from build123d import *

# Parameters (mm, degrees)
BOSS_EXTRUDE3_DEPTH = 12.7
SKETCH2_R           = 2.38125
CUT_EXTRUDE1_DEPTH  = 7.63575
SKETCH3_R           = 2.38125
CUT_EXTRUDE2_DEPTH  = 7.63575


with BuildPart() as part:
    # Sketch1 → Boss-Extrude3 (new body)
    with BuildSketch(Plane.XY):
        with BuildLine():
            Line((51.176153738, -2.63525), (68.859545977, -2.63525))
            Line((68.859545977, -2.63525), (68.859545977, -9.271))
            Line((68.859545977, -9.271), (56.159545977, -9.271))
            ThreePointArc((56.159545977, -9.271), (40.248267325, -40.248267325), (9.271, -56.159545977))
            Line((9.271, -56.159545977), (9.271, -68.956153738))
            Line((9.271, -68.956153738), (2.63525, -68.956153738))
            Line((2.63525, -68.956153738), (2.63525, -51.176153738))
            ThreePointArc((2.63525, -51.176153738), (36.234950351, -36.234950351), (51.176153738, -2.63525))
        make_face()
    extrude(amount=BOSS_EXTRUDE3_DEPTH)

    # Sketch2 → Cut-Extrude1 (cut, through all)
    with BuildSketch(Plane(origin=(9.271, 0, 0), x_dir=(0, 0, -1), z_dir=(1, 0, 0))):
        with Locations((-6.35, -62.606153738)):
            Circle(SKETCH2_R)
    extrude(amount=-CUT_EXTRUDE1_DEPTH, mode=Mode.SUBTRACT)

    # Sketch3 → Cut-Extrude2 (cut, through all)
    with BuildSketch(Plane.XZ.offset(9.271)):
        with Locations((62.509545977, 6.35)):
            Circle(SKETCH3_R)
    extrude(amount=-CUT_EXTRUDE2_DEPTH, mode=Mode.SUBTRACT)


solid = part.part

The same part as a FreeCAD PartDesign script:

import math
import FreeCAD as App
import Part
import Sketcher
from FreeCAD import Vector
Q = App.Units.Quantity

doc = App.newDocument("Part")
body = doc.addObject("PartDesign::Body", "Body")

sketch1 = body.newObject("Sketcher::SketchObject", "Sketch")
sketch1.AttachmentSupport = (doc.getObject("XY_Plane"), [""])
sketch1.MapMode = "FlatFace"
sketch1.addGeometry([
    Part.LineSegment(Vector(69, -3, 0), Vector(51, -3, 0)),
    Part.ArcOfCircle(Part.Circle(Vector(0, 0, 0), Vector(0, 0, 1), 51), math.radians(-87), math.radians(-3)),
    Part.LineSegment(Vector(3, -51, 0), Vector(3, -69, 0)),
    Part.LineSegment(Vector(3, -69, 0), Vector(9, -69, 0)),
    Part.LineSegment(Vector(9, -69, 0), Vector(9, -56, 0)),
    Part.ArcOfCircle(Part.Circle(Vector(0, 0, 0), Vector(0, 0, 1), 57), math.radians(-81), math.radians(-9)),
    Part.LineSegment(Vector(56, -9, 0), Vector(69, -9, 0)),
    Part.LineSegment(Vector(69, -9, 0), Vector(69, -3, 0)),
], False)
sketch1.addConstraint([
    Sketcher.Constraint("Coincident", 0, 2, 1, 2),
    Sketcher.Constraint("Coincident", 1, 1, 2, 1),
    Sketcher.Constraint("Coincident", 2, 2, 3, 1),
    Sketcher.Constraint("Coincident", 3, 2, 4, 1),
    Sketcher.Constraint("Coincident", 4, 2, 5, 1),
    Sketcher.Constraint("Coincident", 5, 2, 6, 1),
    Sketcher.Constraint("Coincident", 6, 2, 7, 1),
    Sketcher.Constraint("Coincident", 7, 2, 0, 1),
    Sketcher.Constraint("Horizontal", 0),
    Sketcher.Constraint("Vertical", 2),
    Sketcher.Constraint("Horizontal", 3),
    Sketcher.Constraint("Vertical", 4),
    Sketcher.Constraint("Horizontal", 6),
    Sketcher.Constraint("Vertical", 7),
    Sketcher.Constraint("Coincident", 1, 3, -1, 1),
    Sketcher.Constraint("Coincident", 5, 3, -1, 1),
    Sketcher.Constraint("Equal", 3, 7),
    Sketcher.Constraint("DistanceX", 6, 1, 6, 2, Q("0.5 in")),
    Sketcher.Constraint("DistanceY", 2, 2, 2, 1, Q("0.7 in")),
    Sketcher.Constraint("DistanceX", -1, 1, 3, 2, Q("0.365 in")),
    Sketcher.Constraint("DistanceY", 5, 2, -1, 1, Q("0.365 in")),
    Sketcher.Constraint("Radius", 1, Q("51.243958 mm")),
    Sketcher.Constraint("Radius", 5, Q("56.919646 mm")),
    Sketcher.Constraint("DistanceX", 3, 1, 3, 2, Q("6.63575 mm")),
])
pad1 = body.newObject("PartDesign::Pad", "Pad")
pad1.Profile = sketch1
pad1.Length = Q("0.5 in")

sketch2 = body.newObject("Sketcher::SketchObject", "Sketch001")
sketch2.AttachmentSupport = (doc.getObject("YZ_Plane"), [""])
sketch2.MapMode = "FlatFace"
sketch2.AttachmentOffset = App.Placement(Vector(0, 0, 0.365 * 25.4), App.Rotation())
sketch2.addGeometry(Part.Circle(Vector(-62.6, 6.3, 0), Vector(0, 0, 1), 2.4), False)
sketch2.addConstraint([
    Sketcher.Constraint("Diameter", 0, Q("0.1875 in")),
    Sketcher.Constraint("DistanceY", -1, 1, 0, 3, Q("0.25 in")),
    Sketcher.Constraint("DistanceX", 0, 3, -1, 1, Q("62.606154 mm")),
])
pocket1 = body.newObject("PartDesign::Pocket", "Pocket")
pocket1.Profile = sketch2
pocket1.Type = "ThroughAll"

sketch3 = body.newObject("Sketcher::SketchObject", "Sketch002")
sketch3.AttachmentSupport = (doc.getObject("XZ_Plane"), [""])
sketch3.MapMode = "FlatFace"
sketch3.AttachmentOffset = App.Placement(Vector(0, 0, 0.365 * 25.4), App.Rotation())
sketch3.addGeometry(Part.Circle(Vector(62.5, 6.3, 0), Vector(0, 0, 1), 2.4), False)
sketch3.addConstraint([
    Sketcher.Constraint("Diameter", 0, Q("0.1875 in")),
    Sketcher.Constraint("DistanceY", -1, 1, 0, 3, Q("0.25 in")),
    Sketcher.Constraint("DistanceX", -1, 1, 0, 3, Q("62.509546 mm")),
])
pocket2 = body.newObject("PartDesign::Pocket", "Pocket001")
pocket2.Profile = sketch3
pocket2.Type = "ThroughAll"

doc.recompute()
